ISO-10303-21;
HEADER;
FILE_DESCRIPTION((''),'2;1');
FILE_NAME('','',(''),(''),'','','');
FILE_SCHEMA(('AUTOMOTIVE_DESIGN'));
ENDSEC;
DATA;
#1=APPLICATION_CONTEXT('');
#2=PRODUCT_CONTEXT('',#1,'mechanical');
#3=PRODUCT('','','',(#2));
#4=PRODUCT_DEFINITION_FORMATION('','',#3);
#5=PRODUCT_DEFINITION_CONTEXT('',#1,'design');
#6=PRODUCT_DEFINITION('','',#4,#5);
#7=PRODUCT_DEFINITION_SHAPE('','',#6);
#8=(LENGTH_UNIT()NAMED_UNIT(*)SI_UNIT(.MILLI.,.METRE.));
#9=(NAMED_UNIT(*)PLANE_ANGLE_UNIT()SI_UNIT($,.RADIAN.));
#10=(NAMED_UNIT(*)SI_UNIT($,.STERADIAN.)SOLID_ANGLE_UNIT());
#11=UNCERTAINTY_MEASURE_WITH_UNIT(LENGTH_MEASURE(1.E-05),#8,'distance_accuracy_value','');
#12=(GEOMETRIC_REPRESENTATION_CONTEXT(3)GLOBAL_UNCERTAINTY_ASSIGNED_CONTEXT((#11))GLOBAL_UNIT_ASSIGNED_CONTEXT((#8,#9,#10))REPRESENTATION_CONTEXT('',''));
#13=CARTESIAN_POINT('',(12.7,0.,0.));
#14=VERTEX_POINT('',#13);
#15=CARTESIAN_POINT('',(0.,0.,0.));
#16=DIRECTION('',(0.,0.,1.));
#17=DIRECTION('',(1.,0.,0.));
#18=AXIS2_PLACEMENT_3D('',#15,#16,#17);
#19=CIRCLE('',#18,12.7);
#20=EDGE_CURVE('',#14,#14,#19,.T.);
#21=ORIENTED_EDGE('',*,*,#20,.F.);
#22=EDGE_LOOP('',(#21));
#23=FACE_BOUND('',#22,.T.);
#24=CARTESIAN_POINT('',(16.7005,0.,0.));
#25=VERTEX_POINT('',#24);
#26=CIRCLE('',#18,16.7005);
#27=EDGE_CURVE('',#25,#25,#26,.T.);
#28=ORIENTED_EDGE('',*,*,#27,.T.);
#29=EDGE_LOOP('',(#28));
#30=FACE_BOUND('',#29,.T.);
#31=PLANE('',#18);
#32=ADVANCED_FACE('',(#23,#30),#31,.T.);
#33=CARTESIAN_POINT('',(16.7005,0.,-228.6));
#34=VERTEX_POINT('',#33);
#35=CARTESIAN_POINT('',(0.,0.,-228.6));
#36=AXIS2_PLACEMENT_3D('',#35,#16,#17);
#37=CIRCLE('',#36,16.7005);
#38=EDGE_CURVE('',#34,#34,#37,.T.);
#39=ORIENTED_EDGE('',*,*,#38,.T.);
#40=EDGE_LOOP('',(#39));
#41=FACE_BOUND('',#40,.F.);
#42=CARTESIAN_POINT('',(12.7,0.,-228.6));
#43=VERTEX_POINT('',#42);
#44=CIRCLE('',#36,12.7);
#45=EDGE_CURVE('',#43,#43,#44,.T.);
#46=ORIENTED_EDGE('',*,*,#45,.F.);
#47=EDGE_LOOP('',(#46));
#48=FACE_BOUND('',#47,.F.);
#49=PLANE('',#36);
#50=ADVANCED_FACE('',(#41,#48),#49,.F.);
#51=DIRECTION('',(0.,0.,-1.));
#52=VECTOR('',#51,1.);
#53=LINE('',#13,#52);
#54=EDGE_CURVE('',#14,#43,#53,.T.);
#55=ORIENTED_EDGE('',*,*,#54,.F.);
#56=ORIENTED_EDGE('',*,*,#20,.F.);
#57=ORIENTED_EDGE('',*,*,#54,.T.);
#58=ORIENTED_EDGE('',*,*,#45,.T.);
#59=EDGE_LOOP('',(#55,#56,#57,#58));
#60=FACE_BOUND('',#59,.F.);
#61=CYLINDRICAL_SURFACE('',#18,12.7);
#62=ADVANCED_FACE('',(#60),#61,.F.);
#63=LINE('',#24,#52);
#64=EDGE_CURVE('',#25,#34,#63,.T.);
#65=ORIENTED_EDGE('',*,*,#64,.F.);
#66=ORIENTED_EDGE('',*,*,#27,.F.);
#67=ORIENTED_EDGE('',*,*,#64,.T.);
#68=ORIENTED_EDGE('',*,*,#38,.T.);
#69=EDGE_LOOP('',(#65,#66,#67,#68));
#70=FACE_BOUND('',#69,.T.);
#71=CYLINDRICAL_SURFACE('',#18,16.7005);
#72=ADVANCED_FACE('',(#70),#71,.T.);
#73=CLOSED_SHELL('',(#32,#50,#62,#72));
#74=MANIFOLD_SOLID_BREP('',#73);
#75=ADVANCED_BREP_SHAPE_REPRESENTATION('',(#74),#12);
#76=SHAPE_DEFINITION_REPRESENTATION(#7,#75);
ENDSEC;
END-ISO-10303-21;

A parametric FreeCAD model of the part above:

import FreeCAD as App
import Part
import Sketcher
from FreeCAD import Vector
Q = App.Units.Quantity

doc = App.newDocument("Part")
body = doc.addObject("PartDesign::Body", "Body")

sketch1 = doc.addObject("Sketcher::SketchObject", "Sketch")
body.addObject(sketch1)
sketch1.AttachmentSupport = (doc.XY_Plane, [""])
sketch1.MapMode = "FlatFace"
sketch1.addGeometry([
    Part.Circle(Vector(0, 0, 0), Vector(0, 0, 1), 17),
    Part.Circle(Vector(0, 0, 0), Vector(0, 0, 1), 13),
], False)
sketch1.addConstraint([
    Sketcher.Constraint("Coincident", 0, 3, -1, 1),
    Sketcher.Constraint("Coincident", 1, 3, -1, 1),
    Sketcher.Constraint("Diameter", 1, Q("1 in")),
    Sketcher.Constraint("Diameter", 0, Q("1.315 in")),
])
pad1 = doc.addObject("PartDesign::Pad", "Pad")
body.addObject(pad1)
pad1.Profile = sketch1
pad1.Length = Q("9 in")
pad1.Reversed = True

doc.recompute()
